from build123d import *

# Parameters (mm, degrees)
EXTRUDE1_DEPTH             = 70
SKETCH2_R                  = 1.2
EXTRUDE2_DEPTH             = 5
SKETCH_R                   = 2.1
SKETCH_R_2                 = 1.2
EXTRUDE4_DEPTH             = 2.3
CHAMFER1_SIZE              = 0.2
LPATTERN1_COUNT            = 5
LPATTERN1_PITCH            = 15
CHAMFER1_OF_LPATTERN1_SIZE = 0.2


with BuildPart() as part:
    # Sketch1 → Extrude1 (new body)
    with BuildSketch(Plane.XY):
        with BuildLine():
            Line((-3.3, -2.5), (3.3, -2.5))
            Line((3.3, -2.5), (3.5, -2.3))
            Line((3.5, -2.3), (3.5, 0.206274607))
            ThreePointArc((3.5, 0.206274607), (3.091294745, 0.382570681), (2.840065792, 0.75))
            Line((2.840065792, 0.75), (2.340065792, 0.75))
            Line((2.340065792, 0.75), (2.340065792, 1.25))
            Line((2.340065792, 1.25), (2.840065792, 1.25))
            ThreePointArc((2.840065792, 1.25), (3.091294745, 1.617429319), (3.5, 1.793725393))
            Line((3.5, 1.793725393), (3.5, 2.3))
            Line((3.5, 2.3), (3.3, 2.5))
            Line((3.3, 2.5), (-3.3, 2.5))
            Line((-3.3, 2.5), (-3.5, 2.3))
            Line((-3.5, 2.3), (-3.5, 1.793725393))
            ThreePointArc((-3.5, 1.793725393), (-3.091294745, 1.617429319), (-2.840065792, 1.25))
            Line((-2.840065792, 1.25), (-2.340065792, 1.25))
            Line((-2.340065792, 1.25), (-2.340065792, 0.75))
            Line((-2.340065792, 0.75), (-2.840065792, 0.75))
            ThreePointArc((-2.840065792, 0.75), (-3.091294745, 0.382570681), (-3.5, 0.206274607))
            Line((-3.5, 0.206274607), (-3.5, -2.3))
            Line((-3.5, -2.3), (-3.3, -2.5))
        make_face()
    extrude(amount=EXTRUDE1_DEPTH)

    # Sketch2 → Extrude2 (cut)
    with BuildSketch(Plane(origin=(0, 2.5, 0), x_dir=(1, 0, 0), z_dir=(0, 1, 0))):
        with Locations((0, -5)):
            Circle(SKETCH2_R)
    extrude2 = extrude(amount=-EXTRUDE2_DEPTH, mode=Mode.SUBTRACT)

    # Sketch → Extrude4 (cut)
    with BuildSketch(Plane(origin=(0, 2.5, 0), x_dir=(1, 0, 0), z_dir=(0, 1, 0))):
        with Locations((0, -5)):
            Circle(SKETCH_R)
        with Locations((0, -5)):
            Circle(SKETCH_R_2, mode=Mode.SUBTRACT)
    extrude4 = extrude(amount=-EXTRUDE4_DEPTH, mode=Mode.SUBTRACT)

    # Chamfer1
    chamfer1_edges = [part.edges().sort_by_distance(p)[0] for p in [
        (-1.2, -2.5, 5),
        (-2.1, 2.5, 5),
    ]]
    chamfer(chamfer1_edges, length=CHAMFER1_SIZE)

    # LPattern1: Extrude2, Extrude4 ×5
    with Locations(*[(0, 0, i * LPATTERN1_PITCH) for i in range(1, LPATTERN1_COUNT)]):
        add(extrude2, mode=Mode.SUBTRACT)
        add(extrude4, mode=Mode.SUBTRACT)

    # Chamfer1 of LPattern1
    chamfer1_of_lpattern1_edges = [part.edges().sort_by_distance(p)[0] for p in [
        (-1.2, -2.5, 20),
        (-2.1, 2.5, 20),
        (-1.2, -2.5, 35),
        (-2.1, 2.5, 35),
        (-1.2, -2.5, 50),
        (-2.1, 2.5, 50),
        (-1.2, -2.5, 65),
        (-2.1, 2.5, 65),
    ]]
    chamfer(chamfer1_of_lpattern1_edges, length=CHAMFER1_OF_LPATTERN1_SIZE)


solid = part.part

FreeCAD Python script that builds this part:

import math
import FreeCAD as App
import Part
import Sketcher

V = App.Vector
Q = App.Units.Quantity


def edges_at(feature, points):
    """Names of the edges that pass closest to the given points."""
    edges = feature.Shape.Edges
    near = lambda p: min(range(len(edges)), key=lambda i: edges[i].distToShape(Part.Vertex(*p))[0])
    return sorted({f"Edge{near(p) + 1}" for p in points})

doc = App.newDocument("Part")
params = doc.addObject("Spreadsheet::Sheet", "Params")
for row, (alias, value) in enumerate([
    ("sketch1_radius", "0.8 mm"),
    ("sketch1_width", "6.6 mm"),
    ("sketch1_width2", "0.5 mm"),
    ("pad1_length", "70 mm"),
    ("sketch2_diameter", "2.4 mm"),
    ("pocket1_length", "5 mm"),
    ("sketch3_diameter", "4.2 mm"),
    ("sketch3_diameter2", "2.4 mm"),
    ("pocket2_length", "2.3 mm"),
    ("chamfer_size", "0.2 mm"),
    ("linearpattern_pitch", "15 mm"),
    ("chamfer2_size", "0.2 mm"),
], start=1):
    params.set(f"A{row}", alias)
    params.set(f"B{row}", "=" + value)
    params.setAlias(f"B{row}", alias)

body = doc.addObject("PartDesign::Body", "Body")

sketch1 = body.newObject("Sketcher::SketchObject", "Sketch")
sketch1.AttachmentSupport = (doc.getObject("XY_Plane"), [""])
sketch1.MapMode = "FlatFace"
sketch1.addGeometry([
    Part.LineSegment(V(-3.3, -2.5, 0), V(3.3, -2.5, 0)),
    Part.LineSegment(V(3.3, -2.5, 0), V(3.5, -2.3, 0)),
    Part.LineSegment(V(3.5, -2.3, 0), V(3.5, 0.206275, 0)),
    Part.ArcOfCircle(Part.Circle(V(3.6, 1, 0), V(0, 0, 1), 0.8), math.radians(-161.790043), math.radians(-97.180756)),
    Part.LineSegment(V(2.840066, 0.75, 0), V(2.340066, 0.75, 0)),
    Part.LineSegment(V(2.340066, 0.75, 0), V(2.340066, 1.25, 0)),
    Part.LineSegment(V(2.340066, 1.25, 0), V(2.840066, 1.25, 0)),
    Part.ArcOfCircle(Part.Circle(V(3.6, 1, 0), V(0, 0, 1), 0.8), math.radians(97.180756), math.radians(161.790043)),
    Part.LineSegment(V(3.5, 1.793725, 0), V(3.5, 2.3, 0)),
    Part.LineSegment(V(3.5, 2.3, 0), V(3.3, 2.5, 0)),
    Part.LineSegment(V(3.3, 2.5, 0), V(-3.3, 2.5, 0)),
    Part.LineSegment(V(-3.3, 2.5, 0), V(-3.5, 2.3, 0)),
    Part.LineSegment(V(-3.5, 2.3, 0), V(-3.5, 1.793725, 0)),
    Part.ArcOfCircle(Part.Circle(V(-3.6, 1, 0), V(0, 0, 1), 0.8), math.radians(18.209957), math.radians(82.819244)),
    Part.LineSegment(V(-2.840066, 1.25, 0), V(-2.340066, 1.25, 0)),
    Part.LineSegment(V(-2.340066, 1.25, 0), V(-2.340066, 0.75, 0)),
    Part.LineSegment(V(-2.340066, 0.75, 0), V(-2.840066, 0.75, 0)),
    Part.ArcOfCircle(Part.Circle(V(-3.6, 1, 0), V(0, 0, 1), 0.8), math.radians(-82.819244), math.radians(-18.209957)),
    Part.LineSegment(V(-3.5, 0.206275, 0), V(-3.5, -2.3, 0)),
    Part.LineSegment(V(-3.5, -2.3, 0), V(-3.3, -2.5, 0)),
], False)
sketch1.addConstraint([
    Sketcher.Constraint("Coincident", 0, 2, 1, 1),
    Sketcher.Constraint("Coincident", 1, 2, 2, 1),
    Sketcher.Constraint("Coincident", 2, 2, 3, 2),
    Sketcher.Constraint("Coincident", 3, 1, 4, 1),
    Sketcher.Constraint("Coincident", 4, 2, 5, 1),
    Sketcher.Constraint("Coincident", 5, 2, 6, 1),
    Sketcher.Constraint("Coincident", 6, 2, 7, 2),
    Sketcher.Constraint("Coincident", 7, 1, 8, 1),
    Sketcher.Constraint("Coincident", 8, 2, 9, 1),
    Sketcher.Constraint("Coincident", 9, 2, 10, 1),
    Sketcher.Constraint("Coincident", 10, 2, 11, 1),
    Sketcher.Constraint("Coincident", 11, 2, 12, 1),
    Sketcher.Constraint("Coincident", 12, 2, 13, 2),
    Sketcher.Constraint("Coincident", 13, 1, 14, 1),
    Sketcher.Constraint("Coincident", 14, 2, 15, 1),
    Sketcher.Constraint("Coincident", 15, 2, 16, 1),
    Sketcher.Constraint("Coincident", 16, 2, 17, 2),
    Sketcher.Constraint("Coincident", 17, 1, 18, 1),
    Sketcher.Constraint("Coincident", 18, 2, 19, 1),
    Sketcher.Constraint("Coincident", 19, 2, 0, 1),
    Sketcher.Constraint("Horizontal", 0),
    Sketcher.Constraint("Vertical", 2),
    Sketcher.Constraint("Horizontal", 4),
    Sketcher.Constraint("Vertical", 5),
    Sketcher.Constraint("Horizontal", 6),
    Sketcher.Constraint("Vertical", 8),
    Sketcher.Constraint("Horizontal", 10),
    Sketcher.Constraint("Vertical", 12),
    Sketcher.Constraint("Horizontal", 14),
    Sketcher.Constraint("Vertical", 15),
    Sketcher.Constraint("Horizontal", 16),
    Sketcher.Constraint("Vertical", 18),
    Sketcher.Constraint("Coincident", 7, 3, 3, 3),
    Sketcher.Constraint("Coincident", 17, 3, 13, 3),
    Sketcher.Constraint("Equal", 3, 7),
    Sketcher.Constraint("Equal", 7, 13),
    Sketcher.Constraint("Equal", 13, 17),
    Sketcher.Constraint("Symmetric", 0, 2, 10, 2, -1, 1),
    Sketcher.Constraint("Symmetric", 1, 2, 11, 2, -1, 1),
    Sketcher.Constraint("Symmetric", 8, 2, 18, 2, -1, 1),
    Sketcher.Constraint("Symmetric", 3, 3, 13, 3, -2),
    Sketcher.Constraint("Symmetric", 8, 2, 11, 2, -2),
    Sketcher.Constraint("Symmetric", 5, 2, 14, 2, -2),
    Sketcher.Constraint("Perpendicular", 1, 9),
    Sketcher.Constraint("Perpendicular", 11, 19),
    Sketcher.Constraint("Horizontal", 4, 2, 15, 2),
    Sketcher.Constraint("Vertical", 3, 1, 6, 2),
    Sketcher.Constraint("Vertical", 0, 2, 9, 2),
    Sketcher.Constraint("Equal", 16, 5),
    Sketcher.Constraint("Radius", 3, Q("0.8 mm")),
    Sketcher.Constraint("DistanceX", 0, 1, 0, 2, Q("6.6 mm")),
    Sketcher.Constraint("DistanceX", 4, 2, 4, 1, Q("0.5 mm")),
    Sketcher.Constraint("DistanceY", -1, 1, 3, 3, Q("1 mm")),
    Sketcher.Constraint("DistanceX", -1, 1, 3, 3, Q("3.6 mm")),
    Sketcher.Constraint("DistanceY", 0, 2, -1, 1, Q("2.5 mm")),
    Sketcher.Constraint("DistanceX", -1, 1, 1, 2, Q("3.5 mm")),
])
sketch1.setExpression("Constraints[49]", "Params.sketch1_radius")
sketch1.setExpression("Constraints[50]", "Params.sketch1_width")
sketch1.setExpression("Constraints[51]", "Params.sketch1_width2")
pad1 = body.newObject("PartDesign::Pad", "Pad")
pad1.Profile = sketch1
pad1.setExpression("Length", "Params.pad1_length")

sketch2 = body.newObject("Sketcher::SketchObject", "Sketch001")
sketch2.AttachmentSupport = (doc.getObject("XZ_Plane"), [""])
sketch2.MapMode = "FlatFace"
sketch2.AttachmentOffset = App.Placement(V(0, 0, -2.5), App.Rotation())
sketch2.addGeometry(Part.Circle(V(0, 5, 0), V(0, 0, 1), 1.2), False)
sketch2.addConstraint([
    Sketcher.Constraint("PointOnObject", 0, 3, -2),
    Sketcher.Constraint("Diameter", 0, Q("2.4 mm")),
    Sketcher.Constraint("DistanceY", -1, 1, 0, 3, Q("5 mm")),
])
sketch2.setExpression("Constraints[1]", "Params.sketch2_diameter")
pocket1 = body.newObject("PartDesign::Pocket", "Pocket")
pocket1.Profile = sketch2
pocket1.setExpression("Length", "Params.pocket1_length")
pocket1.Reversed = True

sketch3 = body.newObject("Sketcher::SketchObject", "Sketch002")
sketch3.AttachmentSupport = (doc.getObject("XZ_Plane"), [""])
sketch3.MapMode = "FlatFace"
sketch3.AttachmentOffset = App.Placement(V(0, 0, -2.5), App.Rotation())
sketch3.addGeometry([
    Part.Circle(V(0, 5, 0), V(0, 0, 1), 2.1),
    Part.Circle(V(0, 5, 0), V(0, 0, 1), 1.2),
], False)
sketch3.addConstraint([
    Sketcher.Constraint("Coincident", 1, 3, 0, 3),
    Sketcher.Constraint("PointOnObject", 0, 3, -2),
    Sketcher.Constraint("Diameter", 0, Q("4.2 mm")),
    Sketcher.Constraint("Diameter", 1, Q("2.4 mm")),
    Sketcher.Constraint("DistanceY", -1, 1, 0, 3, Q("5 mm")),
])
sketch3.setExpression("Constraints[2]", "Params.sketch3_diameter")
sketch3.setExpression("Constraints[3]", "Params.sketch3_diameter2")
pocket2 = body.newObject("PartDesign::Pocket", "Pocket001")
pocket2.Profile = sketch3
pocket2.setExpression("Length", "Params.pocket2_length")
pocket2.Reversed = True
doc.recompute()

chamfer = body.newObject("PartDesign::Chamfer", "Chamfer")
chamfer.Base = (pocket2, edges_at(pocket2, [(-1.2, -2.5, 5), (-2.1, 2.5, 5)]))
chamfer.setExpression("Size", "Params.chamfer_size")
doc.recompute()

linearpattern = body.newObject("PartDesign::LinearPattern", "LinearPattern")
linearpattern.Originals = [pocket1, pocket2]
linearpattern.Direction = (doc.getObject("Z_Axis"), [""])
linearpattern.Mode = "offset"
linearpattern.setExpression("Offset", "Params.linearpattern_pitch")
linearpattern.Occurrences = 5
body.Tip = linearpattern
doc.recompute()

chamfer2 = body.newObject("PartDesign::Chamfer", "Chamfer001")
chamfer2.Base = (linearpattern, edges_at(linearpattern, [
    (-1.2, -2.5, 20),
    (-2.1, 2.5, 20),
    (-1.2, -2.5, 35),
    (-2.1, 2.5, 35),
    (-1.2, -2.5, 50),
    (-2.1, 2.5, 50),
    (-1.2, -2.5, 65),
    (-2.1, 2.5, 65),
]))
chamfer2.setExpression("Size", "Params.chamfer2_size")

doc.recompute()
